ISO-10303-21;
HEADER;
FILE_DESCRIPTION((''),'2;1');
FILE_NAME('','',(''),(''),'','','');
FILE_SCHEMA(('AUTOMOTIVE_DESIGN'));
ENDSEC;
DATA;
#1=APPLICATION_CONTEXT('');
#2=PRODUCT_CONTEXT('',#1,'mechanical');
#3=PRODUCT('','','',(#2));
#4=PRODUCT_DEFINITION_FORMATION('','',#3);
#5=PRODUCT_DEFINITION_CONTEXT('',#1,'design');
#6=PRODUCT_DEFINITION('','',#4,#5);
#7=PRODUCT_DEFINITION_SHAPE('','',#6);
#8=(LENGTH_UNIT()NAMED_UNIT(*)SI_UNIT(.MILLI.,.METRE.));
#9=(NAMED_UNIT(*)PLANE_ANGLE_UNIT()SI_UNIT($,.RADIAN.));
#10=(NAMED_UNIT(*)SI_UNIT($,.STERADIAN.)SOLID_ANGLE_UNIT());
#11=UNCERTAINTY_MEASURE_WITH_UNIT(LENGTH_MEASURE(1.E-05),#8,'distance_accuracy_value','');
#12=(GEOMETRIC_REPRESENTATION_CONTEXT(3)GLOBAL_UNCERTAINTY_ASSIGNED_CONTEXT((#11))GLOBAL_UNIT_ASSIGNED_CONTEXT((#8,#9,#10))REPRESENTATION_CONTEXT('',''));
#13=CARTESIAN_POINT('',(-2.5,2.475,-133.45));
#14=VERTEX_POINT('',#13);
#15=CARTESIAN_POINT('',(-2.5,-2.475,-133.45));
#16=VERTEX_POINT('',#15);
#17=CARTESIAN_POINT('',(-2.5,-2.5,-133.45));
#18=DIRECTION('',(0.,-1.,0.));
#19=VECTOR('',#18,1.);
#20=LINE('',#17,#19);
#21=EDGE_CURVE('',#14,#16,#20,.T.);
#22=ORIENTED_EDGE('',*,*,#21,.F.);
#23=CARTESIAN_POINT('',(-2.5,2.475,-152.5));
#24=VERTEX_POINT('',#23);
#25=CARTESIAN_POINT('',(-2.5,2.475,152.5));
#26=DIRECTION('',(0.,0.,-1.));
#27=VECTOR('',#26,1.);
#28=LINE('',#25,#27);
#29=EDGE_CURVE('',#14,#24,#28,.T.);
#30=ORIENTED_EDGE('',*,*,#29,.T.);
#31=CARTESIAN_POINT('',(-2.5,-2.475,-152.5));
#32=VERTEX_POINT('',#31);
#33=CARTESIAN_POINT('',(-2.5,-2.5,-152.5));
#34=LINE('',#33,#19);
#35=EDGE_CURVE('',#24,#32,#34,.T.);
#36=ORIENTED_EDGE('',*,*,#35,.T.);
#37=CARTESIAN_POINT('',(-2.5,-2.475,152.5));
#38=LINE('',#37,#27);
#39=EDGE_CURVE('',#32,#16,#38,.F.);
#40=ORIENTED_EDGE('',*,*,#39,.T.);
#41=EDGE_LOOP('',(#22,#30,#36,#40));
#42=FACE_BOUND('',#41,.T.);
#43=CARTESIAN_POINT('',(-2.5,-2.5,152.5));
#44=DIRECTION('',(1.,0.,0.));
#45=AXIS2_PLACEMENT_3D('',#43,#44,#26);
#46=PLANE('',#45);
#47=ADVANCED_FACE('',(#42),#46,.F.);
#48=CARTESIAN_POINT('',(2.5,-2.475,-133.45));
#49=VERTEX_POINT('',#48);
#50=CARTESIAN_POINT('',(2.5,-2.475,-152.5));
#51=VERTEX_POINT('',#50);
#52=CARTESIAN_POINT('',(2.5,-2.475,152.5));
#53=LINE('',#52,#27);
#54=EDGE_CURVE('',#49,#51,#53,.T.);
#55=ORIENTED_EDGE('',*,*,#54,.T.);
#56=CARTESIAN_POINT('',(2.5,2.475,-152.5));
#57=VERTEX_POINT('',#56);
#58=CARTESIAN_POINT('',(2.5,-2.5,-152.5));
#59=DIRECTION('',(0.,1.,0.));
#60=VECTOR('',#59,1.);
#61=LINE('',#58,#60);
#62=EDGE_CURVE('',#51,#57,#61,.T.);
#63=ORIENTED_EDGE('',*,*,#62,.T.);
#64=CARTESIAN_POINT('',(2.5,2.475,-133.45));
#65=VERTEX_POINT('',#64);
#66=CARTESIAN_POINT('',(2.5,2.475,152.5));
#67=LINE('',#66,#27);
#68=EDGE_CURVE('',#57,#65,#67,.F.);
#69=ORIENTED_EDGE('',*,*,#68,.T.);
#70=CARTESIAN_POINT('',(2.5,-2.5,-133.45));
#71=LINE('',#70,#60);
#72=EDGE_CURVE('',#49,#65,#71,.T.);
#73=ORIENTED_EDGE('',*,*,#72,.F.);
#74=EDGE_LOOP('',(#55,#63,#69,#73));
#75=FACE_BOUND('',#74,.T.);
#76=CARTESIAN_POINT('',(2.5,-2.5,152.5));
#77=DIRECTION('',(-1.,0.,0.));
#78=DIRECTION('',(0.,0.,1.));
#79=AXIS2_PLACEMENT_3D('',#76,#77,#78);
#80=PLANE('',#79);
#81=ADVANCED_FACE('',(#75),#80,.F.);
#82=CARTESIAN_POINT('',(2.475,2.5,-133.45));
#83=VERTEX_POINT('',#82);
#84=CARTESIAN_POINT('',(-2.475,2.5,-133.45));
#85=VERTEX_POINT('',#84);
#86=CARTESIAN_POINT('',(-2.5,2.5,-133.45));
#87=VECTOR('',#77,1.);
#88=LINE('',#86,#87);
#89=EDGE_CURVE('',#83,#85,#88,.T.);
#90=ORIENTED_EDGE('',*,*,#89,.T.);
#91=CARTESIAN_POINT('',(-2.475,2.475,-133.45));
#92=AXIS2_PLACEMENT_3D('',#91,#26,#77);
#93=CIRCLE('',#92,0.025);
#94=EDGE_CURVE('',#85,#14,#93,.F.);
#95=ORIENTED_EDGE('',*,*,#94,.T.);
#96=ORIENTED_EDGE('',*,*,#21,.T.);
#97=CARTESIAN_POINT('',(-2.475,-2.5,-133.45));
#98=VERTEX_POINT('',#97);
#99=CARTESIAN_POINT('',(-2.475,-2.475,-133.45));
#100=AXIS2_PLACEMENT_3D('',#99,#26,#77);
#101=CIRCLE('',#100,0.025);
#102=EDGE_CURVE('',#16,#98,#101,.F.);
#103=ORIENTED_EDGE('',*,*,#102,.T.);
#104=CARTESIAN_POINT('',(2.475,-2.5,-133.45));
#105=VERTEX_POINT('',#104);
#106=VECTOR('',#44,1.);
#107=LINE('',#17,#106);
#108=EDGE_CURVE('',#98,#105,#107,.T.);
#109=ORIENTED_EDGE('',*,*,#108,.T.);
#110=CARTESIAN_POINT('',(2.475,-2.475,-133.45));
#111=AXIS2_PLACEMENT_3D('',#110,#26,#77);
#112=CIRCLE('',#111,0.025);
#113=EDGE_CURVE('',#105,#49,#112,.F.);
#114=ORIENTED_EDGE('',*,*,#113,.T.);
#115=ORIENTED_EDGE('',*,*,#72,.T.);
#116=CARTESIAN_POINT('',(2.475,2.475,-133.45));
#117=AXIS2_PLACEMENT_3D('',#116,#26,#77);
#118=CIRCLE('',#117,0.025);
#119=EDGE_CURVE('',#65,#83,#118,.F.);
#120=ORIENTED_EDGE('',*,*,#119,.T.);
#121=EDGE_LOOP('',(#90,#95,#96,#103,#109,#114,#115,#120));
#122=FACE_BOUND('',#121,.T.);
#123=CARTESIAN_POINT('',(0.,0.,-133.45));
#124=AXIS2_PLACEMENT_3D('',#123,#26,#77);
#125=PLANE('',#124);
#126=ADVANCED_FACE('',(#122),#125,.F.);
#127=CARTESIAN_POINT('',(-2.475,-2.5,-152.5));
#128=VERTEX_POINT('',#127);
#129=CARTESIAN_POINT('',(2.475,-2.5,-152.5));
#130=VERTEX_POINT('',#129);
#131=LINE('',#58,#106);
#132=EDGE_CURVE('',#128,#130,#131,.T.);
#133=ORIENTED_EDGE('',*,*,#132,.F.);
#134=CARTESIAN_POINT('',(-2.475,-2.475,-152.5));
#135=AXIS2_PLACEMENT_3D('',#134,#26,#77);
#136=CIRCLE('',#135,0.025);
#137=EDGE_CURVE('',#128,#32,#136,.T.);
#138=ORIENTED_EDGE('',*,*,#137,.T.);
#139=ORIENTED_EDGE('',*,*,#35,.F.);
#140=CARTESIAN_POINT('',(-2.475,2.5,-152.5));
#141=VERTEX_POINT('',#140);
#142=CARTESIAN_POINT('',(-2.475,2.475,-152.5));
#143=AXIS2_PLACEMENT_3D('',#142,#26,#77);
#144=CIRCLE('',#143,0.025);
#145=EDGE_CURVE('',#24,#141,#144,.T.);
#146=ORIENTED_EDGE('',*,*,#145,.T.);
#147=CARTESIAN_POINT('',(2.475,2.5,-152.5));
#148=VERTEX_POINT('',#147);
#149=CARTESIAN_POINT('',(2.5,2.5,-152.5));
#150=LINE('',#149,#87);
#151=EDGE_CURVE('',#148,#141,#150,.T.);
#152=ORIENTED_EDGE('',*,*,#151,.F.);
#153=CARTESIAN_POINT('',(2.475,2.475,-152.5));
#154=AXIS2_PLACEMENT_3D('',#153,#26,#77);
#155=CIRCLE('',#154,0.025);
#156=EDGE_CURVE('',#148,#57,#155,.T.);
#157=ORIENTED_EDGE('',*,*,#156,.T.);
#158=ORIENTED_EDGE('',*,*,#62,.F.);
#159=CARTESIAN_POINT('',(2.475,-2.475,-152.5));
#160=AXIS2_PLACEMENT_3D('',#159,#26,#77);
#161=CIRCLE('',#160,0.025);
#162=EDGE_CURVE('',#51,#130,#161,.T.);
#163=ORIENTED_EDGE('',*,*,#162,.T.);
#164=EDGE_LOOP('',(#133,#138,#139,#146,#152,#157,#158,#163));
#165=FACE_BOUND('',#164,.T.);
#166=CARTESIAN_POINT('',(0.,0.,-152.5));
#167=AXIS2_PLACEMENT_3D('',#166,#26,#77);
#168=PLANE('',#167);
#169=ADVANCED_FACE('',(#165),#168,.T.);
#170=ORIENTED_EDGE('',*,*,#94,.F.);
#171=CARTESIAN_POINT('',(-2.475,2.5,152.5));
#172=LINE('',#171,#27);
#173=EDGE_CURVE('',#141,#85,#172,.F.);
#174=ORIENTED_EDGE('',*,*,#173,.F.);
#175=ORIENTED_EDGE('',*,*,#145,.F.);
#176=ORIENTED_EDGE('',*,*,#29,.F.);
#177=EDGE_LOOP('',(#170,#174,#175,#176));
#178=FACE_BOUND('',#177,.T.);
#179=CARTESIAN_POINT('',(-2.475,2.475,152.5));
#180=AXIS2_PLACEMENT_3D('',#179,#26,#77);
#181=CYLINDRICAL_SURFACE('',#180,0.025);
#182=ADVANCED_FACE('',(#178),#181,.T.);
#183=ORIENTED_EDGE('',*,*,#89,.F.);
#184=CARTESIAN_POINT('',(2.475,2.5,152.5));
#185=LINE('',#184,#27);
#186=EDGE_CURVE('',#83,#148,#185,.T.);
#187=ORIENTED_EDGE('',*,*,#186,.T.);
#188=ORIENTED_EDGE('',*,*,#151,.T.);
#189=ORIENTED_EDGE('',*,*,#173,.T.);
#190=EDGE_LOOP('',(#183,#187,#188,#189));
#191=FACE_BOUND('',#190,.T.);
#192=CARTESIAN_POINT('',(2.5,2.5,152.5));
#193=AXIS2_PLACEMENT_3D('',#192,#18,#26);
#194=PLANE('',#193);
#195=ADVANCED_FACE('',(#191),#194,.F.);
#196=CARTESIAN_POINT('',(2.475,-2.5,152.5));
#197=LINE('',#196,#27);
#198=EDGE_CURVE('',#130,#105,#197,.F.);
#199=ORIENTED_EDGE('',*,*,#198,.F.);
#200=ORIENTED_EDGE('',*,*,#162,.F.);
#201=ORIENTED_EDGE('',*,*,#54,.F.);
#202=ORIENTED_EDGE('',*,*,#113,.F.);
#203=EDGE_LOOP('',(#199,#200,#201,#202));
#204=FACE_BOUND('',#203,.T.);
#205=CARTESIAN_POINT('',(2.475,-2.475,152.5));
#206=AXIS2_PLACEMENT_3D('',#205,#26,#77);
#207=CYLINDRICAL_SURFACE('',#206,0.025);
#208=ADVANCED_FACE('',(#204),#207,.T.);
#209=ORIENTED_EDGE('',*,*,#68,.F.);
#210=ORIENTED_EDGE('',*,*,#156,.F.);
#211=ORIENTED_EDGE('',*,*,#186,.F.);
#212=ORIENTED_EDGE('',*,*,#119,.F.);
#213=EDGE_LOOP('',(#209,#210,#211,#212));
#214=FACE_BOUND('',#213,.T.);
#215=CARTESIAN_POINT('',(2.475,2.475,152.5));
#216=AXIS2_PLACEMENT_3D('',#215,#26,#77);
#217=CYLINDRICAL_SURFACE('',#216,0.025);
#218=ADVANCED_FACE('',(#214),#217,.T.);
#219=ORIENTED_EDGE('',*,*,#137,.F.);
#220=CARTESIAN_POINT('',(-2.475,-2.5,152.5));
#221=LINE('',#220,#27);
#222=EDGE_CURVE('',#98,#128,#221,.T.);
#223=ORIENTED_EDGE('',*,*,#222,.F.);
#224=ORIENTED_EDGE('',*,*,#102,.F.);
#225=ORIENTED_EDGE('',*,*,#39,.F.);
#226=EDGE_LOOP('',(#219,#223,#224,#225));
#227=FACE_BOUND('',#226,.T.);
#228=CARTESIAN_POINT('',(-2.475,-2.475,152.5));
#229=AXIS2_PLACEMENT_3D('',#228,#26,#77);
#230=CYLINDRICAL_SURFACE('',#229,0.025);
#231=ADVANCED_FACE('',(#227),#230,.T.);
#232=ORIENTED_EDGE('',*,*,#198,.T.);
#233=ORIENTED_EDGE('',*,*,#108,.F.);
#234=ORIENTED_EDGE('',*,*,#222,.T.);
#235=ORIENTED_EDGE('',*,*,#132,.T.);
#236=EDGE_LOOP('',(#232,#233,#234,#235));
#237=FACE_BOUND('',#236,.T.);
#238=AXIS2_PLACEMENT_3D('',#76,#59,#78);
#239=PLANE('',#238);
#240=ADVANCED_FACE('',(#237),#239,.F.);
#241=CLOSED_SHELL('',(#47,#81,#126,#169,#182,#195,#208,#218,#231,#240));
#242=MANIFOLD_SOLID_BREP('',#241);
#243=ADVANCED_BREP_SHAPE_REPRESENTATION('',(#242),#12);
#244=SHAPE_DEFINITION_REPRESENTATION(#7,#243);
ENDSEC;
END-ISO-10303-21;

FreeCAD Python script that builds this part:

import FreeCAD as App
import Part
import Sketcher
from FreeCAD import Vector


def edges_at(feature, points):
    """Names of the edges that pass closest to the given points."""
    edges = feature.Shape.Edges
    near = lambda p: min(range(len(edges)), key=lambda i: edges[i].distToShape(Part.Vertex(*p))[0])
    return sorted({f"Edge{near(p) + 1}" for p in points})


def add_polygon(sketch, points):
    """Adds a closed chain of lines whose ends are joined by coincident constraints."""
    first, n = sketch.GeometryCount, len(points)
    for a, b in zip(points, points[1:] + points[:1]):
        sketch.addGeometry(Part.LineSegment(App.Vector(*a, 0), App.Vector(*b, 0)), False)
    for i in range(n):
        sketch.addConstraint(Sketcher.Constraint("Coincident", first + i, 2, first + (i + 1) % n, 1))

doc = App.newDocument("Part")
body = doc.addObject("PartDesign::Body", "Body")

sketch1 = body.newObject("Sketcher::SketchObject", "Sketch")
sketch1.AttachmentSupport = (doc.getObject("XY_Plane"), [""])
sketch1.MapMode = "FlatFace"
add_polygon(sketch1, [(-2.5, 2.5), (-2.5, -2.5), (2.5, -2.5), (2.5, 2.5)])
sketch1.addConstraint([
    Sketcher.Constraint("Vertical", 0),
    Sketcher.Constraint("Horizontal", 1),
    Sketcher.Constraint("Vertical", 2),
    Sketcher.Constraint("Horizontal", 3),
    Sketcher.Constraint("Symmetric", 0, 2, 2, 2, -1, 1),
    Sketcher.Constraint("Equal", 3, 0),
    Sketcher.Constraint("DistanceX", 1, 1, 1, 2, 5.0),
])
pad1 = body.newObject("PartDesign::Pad", "Pad")
pad1.Profile = sketch1
pad1.Length = 305
pad1.Midplane = True
doc.recompute()

fillet = body.newObject("PartDesign::Fillet", "Fillet")
fillet.Base = (pad1, edges_at(pad1, [
    (-2.5, -2.5, 0),
    (-2.5, 2.5, 0),
    (2.5, 2.5, 0),
    (2.5, -2.5, 0),
]))
fillet.Radius = 0.025

sketch2 = body.newObject("Sketcher::SketchObject", "Sketch001")
sketch2.AttachmentSupport = (doc.getObject("XY_Plane"), [""])
sketch2.MapMode = "FlatFace"
sketch2.AttachmentOffset = App.Placement(Vector(0, 0, 152.5), App.Rotation())
add_polygon(sketch2, [(-2.5, 2.5), (-2.5, -2.5), (2.5, -2.5), (2.5, 2.5)])
sketch2.addConstraint([
    Sketcher.Constraint("Vertical", 0),
    Sketcher.Constraint("Horizontal", 1),
    Sketcher.Constraint("Vertical", 2),
    Sketcher.Constraint("Horizontal", 3),
    Sketcher.Constraint("Symmetric", 0, 2, 2, 2, -1, 1),
    Sketcher.Constraint("Equal", 3, 0),
    Sketcher.Constraint("DistanceX", 1, 1, 1, 2, 5.0),
])
pocket1 = body.newObject("PartDesign::Pocket", "Pocket")
pocket1.Profile = sketch2
pocket1.Length = 285.95

doc.recompute()
